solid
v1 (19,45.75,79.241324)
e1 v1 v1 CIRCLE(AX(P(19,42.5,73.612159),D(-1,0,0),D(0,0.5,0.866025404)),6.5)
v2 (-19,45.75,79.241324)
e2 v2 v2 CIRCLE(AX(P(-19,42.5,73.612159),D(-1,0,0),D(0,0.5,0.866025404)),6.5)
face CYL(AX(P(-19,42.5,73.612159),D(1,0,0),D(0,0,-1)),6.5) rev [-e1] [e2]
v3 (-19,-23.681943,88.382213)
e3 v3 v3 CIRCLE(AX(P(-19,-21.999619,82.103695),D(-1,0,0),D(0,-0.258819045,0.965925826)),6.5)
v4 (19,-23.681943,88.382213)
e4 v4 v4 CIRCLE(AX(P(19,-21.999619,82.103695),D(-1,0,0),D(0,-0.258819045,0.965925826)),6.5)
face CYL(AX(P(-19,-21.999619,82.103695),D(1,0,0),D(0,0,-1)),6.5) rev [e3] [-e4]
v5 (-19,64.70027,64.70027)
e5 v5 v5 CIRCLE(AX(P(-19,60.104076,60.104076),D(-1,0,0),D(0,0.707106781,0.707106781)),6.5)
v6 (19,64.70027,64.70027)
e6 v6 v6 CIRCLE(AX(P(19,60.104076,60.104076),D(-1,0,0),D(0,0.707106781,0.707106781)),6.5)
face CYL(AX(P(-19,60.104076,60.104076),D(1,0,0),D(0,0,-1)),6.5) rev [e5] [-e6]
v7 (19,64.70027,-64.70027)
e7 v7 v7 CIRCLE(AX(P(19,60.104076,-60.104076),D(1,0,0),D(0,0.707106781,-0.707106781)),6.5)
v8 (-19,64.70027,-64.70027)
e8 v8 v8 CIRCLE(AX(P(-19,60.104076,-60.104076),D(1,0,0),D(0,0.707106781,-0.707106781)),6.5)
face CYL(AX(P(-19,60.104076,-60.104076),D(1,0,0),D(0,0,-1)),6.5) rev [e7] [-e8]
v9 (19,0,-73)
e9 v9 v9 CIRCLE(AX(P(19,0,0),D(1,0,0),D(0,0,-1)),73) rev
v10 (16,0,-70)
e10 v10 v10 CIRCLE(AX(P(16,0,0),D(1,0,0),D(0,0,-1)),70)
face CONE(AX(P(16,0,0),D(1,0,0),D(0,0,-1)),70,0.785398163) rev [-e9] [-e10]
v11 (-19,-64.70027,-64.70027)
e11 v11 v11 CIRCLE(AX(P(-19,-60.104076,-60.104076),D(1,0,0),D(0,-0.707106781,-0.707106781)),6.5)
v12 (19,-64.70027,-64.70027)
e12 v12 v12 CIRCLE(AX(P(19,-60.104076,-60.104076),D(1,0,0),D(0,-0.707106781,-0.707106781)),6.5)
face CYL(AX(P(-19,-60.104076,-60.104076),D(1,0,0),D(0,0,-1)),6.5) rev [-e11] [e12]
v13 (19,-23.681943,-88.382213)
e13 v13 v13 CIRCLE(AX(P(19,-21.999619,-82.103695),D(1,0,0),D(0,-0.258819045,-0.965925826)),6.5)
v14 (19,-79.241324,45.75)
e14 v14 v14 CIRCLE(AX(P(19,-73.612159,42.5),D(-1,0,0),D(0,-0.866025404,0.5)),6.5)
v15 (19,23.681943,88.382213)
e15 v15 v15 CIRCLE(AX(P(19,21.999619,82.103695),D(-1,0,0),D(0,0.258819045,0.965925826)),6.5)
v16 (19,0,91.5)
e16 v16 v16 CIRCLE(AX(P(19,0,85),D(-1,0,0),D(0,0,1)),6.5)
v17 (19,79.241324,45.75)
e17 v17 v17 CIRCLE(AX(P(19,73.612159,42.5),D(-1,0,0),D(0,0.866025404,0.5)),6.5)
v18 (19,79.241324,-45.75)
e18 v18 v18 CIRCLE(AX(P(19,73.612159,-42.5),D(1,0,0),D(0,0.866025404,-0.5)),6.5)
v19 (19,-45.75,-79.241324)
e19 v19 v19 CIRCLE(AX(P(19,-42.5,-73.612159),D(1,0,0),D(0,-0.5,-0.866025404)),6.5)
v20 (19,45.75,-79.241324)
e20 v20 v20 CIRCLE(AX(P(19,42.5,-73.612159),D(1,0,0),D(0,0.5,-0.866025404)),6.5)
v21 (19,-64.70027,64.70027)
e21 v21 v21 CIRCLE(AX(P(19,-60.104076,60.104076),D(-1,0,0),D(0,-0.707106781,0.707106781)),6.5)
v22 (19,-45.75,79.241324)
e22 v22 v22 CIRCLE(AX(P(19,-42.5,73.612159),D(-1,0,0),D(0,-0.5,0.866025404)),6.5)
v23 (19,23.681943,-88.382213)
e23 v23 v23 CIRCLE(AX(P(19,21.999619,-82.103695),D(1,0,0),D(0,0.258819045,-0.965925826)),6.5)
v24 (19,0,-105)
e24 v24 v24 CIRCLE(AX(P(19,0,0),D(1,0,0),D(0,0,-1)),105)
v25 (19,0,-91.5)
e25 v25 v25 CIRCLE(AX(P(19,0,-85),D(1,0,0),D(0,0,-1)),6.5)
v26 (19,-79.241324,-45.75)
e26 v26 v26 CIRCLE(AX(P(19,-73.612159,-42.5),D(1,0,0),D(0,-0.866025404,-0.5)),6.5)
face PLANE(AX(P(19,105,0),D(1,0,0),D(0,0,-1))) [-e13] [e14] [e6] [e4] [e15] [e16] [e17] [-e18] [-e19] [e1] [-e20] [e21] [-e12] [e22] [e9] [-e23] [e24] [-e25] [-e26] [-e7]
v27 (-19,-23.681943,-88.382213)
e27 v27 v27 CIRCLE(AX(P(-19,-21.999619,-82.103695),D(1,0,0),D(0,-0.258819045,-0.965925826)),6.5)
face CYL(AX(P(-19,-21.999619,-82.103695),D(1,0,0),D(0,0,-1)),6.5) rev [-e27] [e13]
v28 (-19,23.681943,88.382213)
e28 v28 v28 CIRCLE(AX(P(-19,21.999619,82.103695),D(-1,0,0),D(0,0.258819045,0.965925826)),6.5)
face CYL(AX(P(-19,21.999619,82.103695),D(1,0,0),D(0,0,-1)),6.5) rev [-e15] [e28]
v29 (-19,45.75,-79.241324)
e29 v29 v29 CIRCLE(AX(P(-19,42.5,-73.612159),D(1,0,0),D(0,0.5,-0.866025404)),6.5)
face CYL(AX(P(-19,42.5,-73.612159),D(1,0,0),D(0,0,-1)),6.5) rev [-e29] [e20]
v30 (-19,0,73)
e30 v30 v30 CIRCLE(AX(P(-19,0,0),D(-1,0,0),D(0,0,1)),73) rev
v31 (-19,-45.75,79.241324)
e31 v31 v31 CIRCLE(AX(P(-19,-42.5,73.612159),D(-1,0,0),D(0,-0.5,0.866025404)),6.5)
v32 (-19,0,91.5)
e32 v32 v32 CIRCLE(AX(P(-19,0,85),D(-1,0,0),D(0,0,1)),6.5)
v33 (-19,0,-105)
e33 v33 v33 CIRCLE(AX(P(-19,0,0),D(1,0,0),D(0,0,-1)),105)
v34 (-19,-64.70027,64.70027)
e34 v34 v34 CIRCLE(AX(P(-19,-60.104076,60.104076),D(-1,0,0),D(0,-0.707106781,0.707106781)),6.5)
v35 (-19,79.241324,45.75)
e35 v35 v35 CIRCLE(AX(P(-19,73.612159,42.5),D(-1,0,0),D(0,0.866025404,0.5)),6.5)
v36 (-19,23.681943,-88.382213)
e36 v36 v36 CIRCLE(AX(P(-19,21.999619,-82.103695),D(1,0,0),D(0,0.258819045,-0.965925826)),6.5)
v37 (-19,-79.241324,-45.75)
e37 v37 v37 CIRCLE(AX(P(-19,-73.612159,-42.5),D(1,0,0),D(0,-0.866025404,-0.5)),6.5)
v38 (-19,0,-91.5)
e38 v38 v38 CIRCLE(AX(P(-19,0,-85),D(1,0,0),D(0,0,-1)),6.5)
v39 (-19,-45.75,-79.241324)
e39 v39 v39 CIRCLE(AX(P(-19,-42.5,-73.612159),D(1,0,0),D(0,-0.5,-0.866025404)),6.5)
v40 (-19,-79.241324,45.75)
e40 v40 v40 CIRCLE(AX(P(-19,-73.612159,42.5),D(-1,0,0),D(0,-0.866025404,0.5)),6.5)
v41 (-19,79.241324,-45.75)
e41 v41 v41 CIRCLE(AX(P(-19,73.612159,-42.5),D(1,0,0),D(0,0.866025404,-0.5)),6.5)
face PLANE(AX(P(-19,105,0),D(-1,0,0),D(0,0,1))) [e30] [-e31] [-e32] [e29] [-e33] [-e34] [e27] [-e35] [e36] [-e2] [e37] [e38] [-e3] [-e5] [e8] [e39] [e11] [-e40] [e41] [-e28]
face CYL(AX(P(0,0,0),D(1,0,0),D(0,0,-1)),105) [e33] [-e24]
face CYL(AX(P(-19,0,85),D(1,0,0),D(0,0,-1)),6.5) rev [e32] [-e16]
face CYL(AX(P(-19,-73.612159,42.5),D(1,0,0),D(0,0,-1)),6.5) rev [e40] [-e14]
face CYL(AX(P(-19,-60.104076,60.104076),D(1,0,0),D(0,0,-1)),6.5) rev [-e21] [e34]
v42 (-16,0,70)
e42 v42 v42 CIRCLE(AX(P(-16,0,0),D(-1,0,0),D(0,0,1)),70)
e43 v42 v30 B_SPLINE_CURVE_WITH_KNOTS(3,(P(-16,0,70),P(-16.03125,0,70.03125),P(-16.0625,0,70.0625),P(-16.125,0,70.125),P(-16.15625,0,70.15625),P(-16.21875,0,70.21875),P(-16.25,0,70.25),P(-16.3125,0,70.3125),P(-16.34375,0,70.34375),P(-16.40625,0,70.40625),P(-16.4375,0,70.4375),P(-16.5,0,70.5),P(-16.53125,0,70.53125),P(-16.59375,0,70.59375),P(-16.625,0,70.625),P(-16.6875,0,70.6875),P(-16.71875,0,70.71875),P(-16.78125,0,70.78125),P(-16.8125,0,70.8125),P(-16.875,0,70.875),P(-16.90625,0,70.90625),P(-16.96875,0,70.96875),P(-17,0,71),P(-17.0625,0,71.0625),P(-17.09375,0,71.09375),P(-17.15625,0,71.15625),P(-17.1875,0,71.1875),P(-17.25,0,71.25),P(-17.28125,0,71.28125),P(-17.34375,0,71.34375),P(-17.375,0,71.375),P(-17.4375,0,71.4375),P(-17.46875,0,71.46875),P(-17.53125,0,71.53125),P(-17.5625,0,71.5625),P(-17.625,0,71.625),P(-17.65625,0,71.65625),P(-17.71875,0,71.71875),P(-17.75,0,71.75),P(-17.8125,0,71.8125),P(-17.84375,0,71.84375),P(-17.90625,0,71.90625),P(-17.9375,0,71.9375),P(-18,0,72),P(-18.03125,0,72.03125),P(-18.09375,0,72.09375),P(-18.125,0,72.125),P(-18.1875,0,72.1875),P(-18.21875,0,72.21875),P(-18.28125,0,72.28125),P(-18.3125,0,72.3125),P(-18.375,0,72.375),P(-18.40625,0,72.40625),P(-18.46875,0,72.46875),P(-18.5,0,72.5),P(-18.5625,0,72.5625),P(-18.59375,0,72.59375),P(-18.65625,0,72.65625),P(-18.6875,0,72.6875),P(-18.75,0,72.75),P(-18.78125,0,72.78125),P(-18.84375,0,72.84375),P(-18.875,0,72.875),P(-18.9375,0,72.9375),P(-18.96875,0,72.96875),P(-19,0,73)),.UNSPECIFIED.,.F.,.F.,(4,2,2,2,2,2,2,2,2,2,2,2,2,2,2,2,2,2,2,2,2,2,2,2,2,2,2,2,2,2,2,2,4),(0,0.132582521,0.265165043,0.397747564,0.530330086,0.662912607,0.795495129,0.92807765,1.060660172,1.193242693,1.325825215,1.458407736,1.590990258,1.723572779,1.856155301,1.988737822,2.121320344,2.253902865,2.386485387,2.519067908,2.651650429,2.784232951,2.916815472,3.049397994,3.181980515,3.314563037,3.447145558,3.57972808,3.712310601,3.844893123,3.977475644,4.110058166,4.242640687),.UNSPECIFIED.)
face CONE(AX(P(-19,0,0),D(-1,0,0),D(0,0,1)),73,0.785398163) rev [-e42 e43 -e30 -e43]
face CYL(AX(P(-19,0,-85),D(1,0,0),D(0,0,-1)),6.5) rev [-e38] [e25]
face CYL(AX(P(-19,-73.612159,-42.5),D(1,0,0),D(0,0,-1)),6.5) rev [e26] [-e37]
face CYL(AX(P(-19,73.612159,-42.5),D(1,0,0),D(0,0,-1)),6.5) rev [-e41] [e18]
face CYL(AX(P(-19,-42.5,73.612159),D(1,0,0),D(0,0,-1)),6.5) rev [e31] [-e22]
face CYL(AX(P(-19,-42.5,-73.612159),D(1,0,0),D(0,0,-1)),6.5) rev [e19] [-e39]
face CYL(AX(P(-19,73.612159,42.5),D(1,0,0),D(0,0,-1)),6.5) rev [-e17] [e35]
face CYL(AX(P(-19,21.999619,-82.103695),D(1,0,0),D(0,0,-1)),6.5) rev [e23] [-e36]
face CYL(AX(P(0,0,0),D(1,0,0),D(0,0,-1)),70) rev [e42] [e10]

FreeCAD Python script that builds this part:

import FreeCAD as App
import Part
import Sketcher


def edges_at(feature, points):
    """Names of the edges that pass closest to the given points."""
    edges = feature.Shape.Edges
    near = lambda p: min(range(len(edges)), key=lambda i: edges[i].distToShape(Part.Vertex(*p))[0])
    return sorted({f"Edge{near(p) + 1}" for p in points})


def add_polygon(sketch, points):
    """Adds a closed chain of lines whose ends are joined by coincident constraints."""
    first, n = sketch.GeometryCount, len(points)
    for a, b in zip(points, points[1:] + points[:1]):
        sketch.addGeometry(Part.LineSegment(App.Vector(*a, 0), App.Vector(*b, 0)), False)
    for i in range(n):
        sketch.addConstraint(Sketcher.Constraint("Coincident", first + i, 2, first + (i + 1) % n, 1))

doc = App.newDocument("Part")
body = doc.addObject("PartDesign::Body", "Body")

sketch1 = body.newObject("Sketcher::SketchObject", "Sketch")
sketch1.AttachmentSupport = (doc.getObject("XY_Plane"), [""])
sketch1.MapMode = "FlatFace"
add_polygon(sketch1, [(-19, 105), (-19, 70), (19, 70), (19, 105)])
sketch1.addConstraint([
    Sketcher.Constraint("Vertical", 0),
    Sketcher.Constraint("Horizontal", 1),
    Sketcher.Constraint("Vertical", 2),
    Sketcher.Constraint("Horizontal", 3),
    Sketcher.Constraint("DistanceX", 1, 1, 1, 2, 38.0),
    Sketcher.Constraint("DistanceY", 0, 2, 0, 1, 35.0),
    Sketcher.Constraint("DistanceX", 0, 2, -1, 1, 19.0),
    Sketcher.Constraint("DistanceY", -1, 1, 0, 2, 70.0),
])
revolution = body.newObject("PartDesign::Revolution", "Revolution")
revolution.Profile = sketch1
revolution.ReferenceAxis = (sketch1, ["H_Axis"])
revolution.Angle = 360

sketch2 = body.newObject("Sketcher::SketchObject", "Sketch001")
sketch2.AttachmentSupport = (doc.getObject("YZ_Plane"), [""])
sketch2.MapMode = "FlatFace"
sketch2.AttachmentOffset = App.Placement(App.Vector(0, 0, 19), App.Rotation())
sketch2.addGeometry(Part.Circle(App.Vector(0, -85, 0), App.Vector(0, 0, 1), 6), False)
sketch2.addConstraint([
    Sketcher.Constraint("PointOnObject", 0, 3, -2),
    Sketcher.Constraint("Diameter", 0, 13.0),
    Sketcher.Constraint("DistanceY", 0, 3, -1, 1, 85.0),
])
pocket1 = body.newObject("PartDesign::Pocket", "Pocket")
pocket1.Profile = sketch2
pocket1.Type = "ThroughAll"
doc.recompute()

polarpattern = body.newObject("PartDesign::PolarPattern", "PolarPattern")
polarpattern.Originals = [pocket1]
polarpattern.Axis = (doc.getObject("X_Axis"), [""])
polarpattern.Angle = 60
polarpattern.Occurrences = 5
body.Tip = polarpattern
doc.recompute()

polarpattern2 = body.newObject("PartDesign::PolarPattern", "PolarPattern001")
polarpattern2.Originals = [pocket1]
polarpattern2.Axis = (doc.getObject("X_Axis"), [""])
polarpattern2.Angle = 60
polarpattern2.Occurrences = 5
polarpattern2.Reversed = True
body.Tip = polarpattern2
doc.recompute()

mirrored = body.newObject("PartDesign::Mirrored", "Mirrored")
mirrored.Originals = [pocket1]
mirrored.MirrorPlane = (doc.getObject("XY_Plane"), [""])
body.Tip = mirrored

sketch3 = body.newObject("Sketcher::SketchObject", "Sketch002")
sketch3.AttachmentSupport = (doc.getObject("YZ_Plane"), [""])
sketch3.MapMode = "FlatFace"
sketch3.AttachmentOffset = App.Placement(App.Vector(0, 0, 19), App.Rotation())
sketch3.addGeometry(Part.Circle(App.Vector(22, 82, 0), App.Vector(0, 0, 1), 6), False)
sketch3.addConstraint([
    Sketcher.Constraint("Diameter", 0, 13.0),
    Sketcher.Constraint("DistanceX", -1, 1, 0, 3, 21.999619),
    Sketcher.Constraint("DistanceY", -1, 1, 0, 3, 82.103695),
])
pocket2 = body.newObject("PartDesign::Pocket", "Pocket001")
pocket2.Profile = sketch3
pocket2.Type = "ThroughAll"

sketch4 = body.newObject("Sketcher::SketchObject", "Sketch003")
sketch4.AttachmentSupport = (doc.getObject("YZ_Plane"), [""])
sketch4.MapMode = "FlatFace"
sketch4.AttachmentOffset = App.Placement(App.Vector(0, 0, 19), App.Rotation())
sketch4.addGeometry(Part.Circle(App.Vector(42, 74, 0), App.Vector(0, 0, 1), 6), False)
sketch4.addConstraint([
    Sketcher.Constraint("Diameter", 0, 13.0),
    Sketcher.Constraint("DistanceX", -1, 1, 0, 3, 42.5),
    Sketcher.Constraint("DistanceY", -1, 1, 0, 3, 73.612159),
])
pocket3 = body.newObject("PartDesign::Pocket", "Pocket002")
pocket3.Profile = sketch4
pocket3.Type = "ThroughAll"

sketch5 = body.newObject("Sketcher::SketchObject", "Sketch004")
sketch5.AttachmentSupport = (doc.getObject("YZ_Plane"), [""])
sketch5.MapMode = "FlatFace"
sketch5.AttachmentOffset = App.Placement(App.Vector(0, 0, 19), App.Rotation())
sketch5.addGeometry(Part.Circle(App.Vector(60, 60, 0), App.Vector(0, 0, 1), 6), False)
sketch5.addConstraint([
    Sketcher.Constraint("Diameter", 0, 13.0),
    Sketcher.Constraint("DistanceX", -1, 1, 0, 3, 60.104076),
    Sketcher.Constraint("DistanceY", -1, 1, 0, 3, 60.104076),
])
pocket4 = body.newObject("PartDesign::Pocket", "Pocket003")
pocket4.Profile = sketch5
pocket4.Type = "ThroughAll"

sketch6 = body.newObject("Sketcher::SketchObject", "Sketch005")
sketch6.AttachmentSupport = (doc.getObject("YZ_Plane"), [""])
sketch6.MapMode = "FlatFace"
sketch6.AttachmentOffset = App.Placement(App.Vector(0, 0, 19), App.Rotation())
sketch6.addGeometry(Part.Circle(App.Vector(74, 42, 0), App.Vector(0, 0, 1), 6), False)
sketch6.addConstraint([
    Sketcher.Constraint("Diameter", 0, 13.0),
    Sketcher.Constraint("DistanceY", -1, 1, 0, 3, 42.5),
    Sketcher.Constraint("DistanceX", -1, 1, 0, 3, 73.612159),
])
pocket5 = body.newObject("PartDesign::Pocket", "Pocket004")
pocket5.Profile = sketch6
pocket5.Type = "ThroughAll"

sketch7 = body.newObject("Sketcher::SketchObject", "Sketch006")
sketch7.AttachmentSupport = (doc.getObject("YZ_Plane"), [""])
sketch7.MapMode = "FlatFace"
sketch7.AttachmentOffset = App.Placement(App.Vector(0, 0, 19), App.Rotation())
sketch7.addGeometry(Part.Circle(App.Vector(-22, 82, 0), App.Vector(0, 0, 1), 6), False)
sketch7.addConstraint([
    Sketcher.Constraint("Diameter", 0, 13.0),
    Sketcher.Constraint("DistanceX", 0, 3, -1, 1, 21.999619),
    Sketcher.Constraint("DistanceY", -1, 1, 0, 3, 82.103695),
])
pocket6 = body.newObject("PartDesign::Pocket", "Pocket005")
pocket6.Profile = sketch7
pocket6.Type = "ThroughAll"

sketch8 = body.newObject("Sketcher::SketchObject", "Sketch007")
sketch8.AttachmentSupport = (doc.getObject("YZ_Plane"), [""])
sketch8.MapMode = "FlatFace"
sketch8.AttachmentOffset = App.Placement(App.Vector(0, 0, 19), App.Rotation())
sketch8.addGeometry(Part.Circle(App.Vector(-42, 74, 0), App.Vector(0, 0, 1), 6), False)
sketch8.addConstraint([
    Sketcher.Constraint("Diameter", 0, 13.0),
    Sketcher.Constraint("DistanceX", 0, 3, -1, 1, 42.5),
    Sketcher.Constraint("DistanceY", -1, 1, 0, 3, 73.612159),
])
pocket7 = body.newObject("PartDesign::Pocket", "Pocket006")
pocket7.Profile = sketch8
pocket7.Type = "ThroughAll"

sketch9 = body.newObject("Sketcher::SketchObject", "Sketch008")
sketch9.AttachmentSupport = (doc.getObject("YZ_Plane"), [""])
sketch9.MapMode = "FlatFace"
sketch9.AttachmentOffset = App.Placement(App.Vector(0, 0, 19), App.Rotation())
sketch9.addGeometry(Part.Circle(App.Vector(-60, 60, 0), App.Vector(0, 0, 1), 6), False)
sketch9.addConstraint([
    Sketcher.Constraint("Diameter", 0, 13.0),
    Sketcher.Constraint("DistanceX", 0, 3, -1, 1, 60.104076),
    Sketcher.Constraint("DistanceY", -1, 1, 0, 3, 60.104076),
])
pocket8 = body.newObject("PartDesign::Pocket", "Pocket007")
pocket8.Profile = sketch9
pocket8.Type = "ThroughAll"

sketch10 = body.newObject("Sketcher::SketchObject", "Sketch009")
sketch10.AttachmentSupport = (doc.getObject("YZ_Plane"), [""])
sketch10.MapMode = "FlatFace"
sketch10.AttachmentOffset = App.Placement(App.Vector(0, 0, 19), App.Rotation())
sketch10.addGeometry(Part.Circle(App.Vector(-74, 42, 0), App.Vector(0, 0, 1), 6), False)
sketch10.addConstraint([
    Sketcher.Constraint("Diameter", 0, 13.0),
    Sketcher.Constraint("DistanceY", -1, 1, 0, 3, 42.5),
    Sketcher.Constraint("DistanceX", 0, 3, -1, 1, 73.612159),
])
pocket9 = body.newObject("PartDesign::Pocket", "Pocket008")
pocket9.Profile = sketch10
pocket9.Type = "ThroughAll"
doc.recompute()

chamfer = body.newObject("PartDesign::Chamfer", "Chamfer")
chamfer.Base = (pocket9, edges_at(pocket9, [(19, 0, 70), (-19, 0, 70)]))
chamfer.Size = 3

doc.recompute()
